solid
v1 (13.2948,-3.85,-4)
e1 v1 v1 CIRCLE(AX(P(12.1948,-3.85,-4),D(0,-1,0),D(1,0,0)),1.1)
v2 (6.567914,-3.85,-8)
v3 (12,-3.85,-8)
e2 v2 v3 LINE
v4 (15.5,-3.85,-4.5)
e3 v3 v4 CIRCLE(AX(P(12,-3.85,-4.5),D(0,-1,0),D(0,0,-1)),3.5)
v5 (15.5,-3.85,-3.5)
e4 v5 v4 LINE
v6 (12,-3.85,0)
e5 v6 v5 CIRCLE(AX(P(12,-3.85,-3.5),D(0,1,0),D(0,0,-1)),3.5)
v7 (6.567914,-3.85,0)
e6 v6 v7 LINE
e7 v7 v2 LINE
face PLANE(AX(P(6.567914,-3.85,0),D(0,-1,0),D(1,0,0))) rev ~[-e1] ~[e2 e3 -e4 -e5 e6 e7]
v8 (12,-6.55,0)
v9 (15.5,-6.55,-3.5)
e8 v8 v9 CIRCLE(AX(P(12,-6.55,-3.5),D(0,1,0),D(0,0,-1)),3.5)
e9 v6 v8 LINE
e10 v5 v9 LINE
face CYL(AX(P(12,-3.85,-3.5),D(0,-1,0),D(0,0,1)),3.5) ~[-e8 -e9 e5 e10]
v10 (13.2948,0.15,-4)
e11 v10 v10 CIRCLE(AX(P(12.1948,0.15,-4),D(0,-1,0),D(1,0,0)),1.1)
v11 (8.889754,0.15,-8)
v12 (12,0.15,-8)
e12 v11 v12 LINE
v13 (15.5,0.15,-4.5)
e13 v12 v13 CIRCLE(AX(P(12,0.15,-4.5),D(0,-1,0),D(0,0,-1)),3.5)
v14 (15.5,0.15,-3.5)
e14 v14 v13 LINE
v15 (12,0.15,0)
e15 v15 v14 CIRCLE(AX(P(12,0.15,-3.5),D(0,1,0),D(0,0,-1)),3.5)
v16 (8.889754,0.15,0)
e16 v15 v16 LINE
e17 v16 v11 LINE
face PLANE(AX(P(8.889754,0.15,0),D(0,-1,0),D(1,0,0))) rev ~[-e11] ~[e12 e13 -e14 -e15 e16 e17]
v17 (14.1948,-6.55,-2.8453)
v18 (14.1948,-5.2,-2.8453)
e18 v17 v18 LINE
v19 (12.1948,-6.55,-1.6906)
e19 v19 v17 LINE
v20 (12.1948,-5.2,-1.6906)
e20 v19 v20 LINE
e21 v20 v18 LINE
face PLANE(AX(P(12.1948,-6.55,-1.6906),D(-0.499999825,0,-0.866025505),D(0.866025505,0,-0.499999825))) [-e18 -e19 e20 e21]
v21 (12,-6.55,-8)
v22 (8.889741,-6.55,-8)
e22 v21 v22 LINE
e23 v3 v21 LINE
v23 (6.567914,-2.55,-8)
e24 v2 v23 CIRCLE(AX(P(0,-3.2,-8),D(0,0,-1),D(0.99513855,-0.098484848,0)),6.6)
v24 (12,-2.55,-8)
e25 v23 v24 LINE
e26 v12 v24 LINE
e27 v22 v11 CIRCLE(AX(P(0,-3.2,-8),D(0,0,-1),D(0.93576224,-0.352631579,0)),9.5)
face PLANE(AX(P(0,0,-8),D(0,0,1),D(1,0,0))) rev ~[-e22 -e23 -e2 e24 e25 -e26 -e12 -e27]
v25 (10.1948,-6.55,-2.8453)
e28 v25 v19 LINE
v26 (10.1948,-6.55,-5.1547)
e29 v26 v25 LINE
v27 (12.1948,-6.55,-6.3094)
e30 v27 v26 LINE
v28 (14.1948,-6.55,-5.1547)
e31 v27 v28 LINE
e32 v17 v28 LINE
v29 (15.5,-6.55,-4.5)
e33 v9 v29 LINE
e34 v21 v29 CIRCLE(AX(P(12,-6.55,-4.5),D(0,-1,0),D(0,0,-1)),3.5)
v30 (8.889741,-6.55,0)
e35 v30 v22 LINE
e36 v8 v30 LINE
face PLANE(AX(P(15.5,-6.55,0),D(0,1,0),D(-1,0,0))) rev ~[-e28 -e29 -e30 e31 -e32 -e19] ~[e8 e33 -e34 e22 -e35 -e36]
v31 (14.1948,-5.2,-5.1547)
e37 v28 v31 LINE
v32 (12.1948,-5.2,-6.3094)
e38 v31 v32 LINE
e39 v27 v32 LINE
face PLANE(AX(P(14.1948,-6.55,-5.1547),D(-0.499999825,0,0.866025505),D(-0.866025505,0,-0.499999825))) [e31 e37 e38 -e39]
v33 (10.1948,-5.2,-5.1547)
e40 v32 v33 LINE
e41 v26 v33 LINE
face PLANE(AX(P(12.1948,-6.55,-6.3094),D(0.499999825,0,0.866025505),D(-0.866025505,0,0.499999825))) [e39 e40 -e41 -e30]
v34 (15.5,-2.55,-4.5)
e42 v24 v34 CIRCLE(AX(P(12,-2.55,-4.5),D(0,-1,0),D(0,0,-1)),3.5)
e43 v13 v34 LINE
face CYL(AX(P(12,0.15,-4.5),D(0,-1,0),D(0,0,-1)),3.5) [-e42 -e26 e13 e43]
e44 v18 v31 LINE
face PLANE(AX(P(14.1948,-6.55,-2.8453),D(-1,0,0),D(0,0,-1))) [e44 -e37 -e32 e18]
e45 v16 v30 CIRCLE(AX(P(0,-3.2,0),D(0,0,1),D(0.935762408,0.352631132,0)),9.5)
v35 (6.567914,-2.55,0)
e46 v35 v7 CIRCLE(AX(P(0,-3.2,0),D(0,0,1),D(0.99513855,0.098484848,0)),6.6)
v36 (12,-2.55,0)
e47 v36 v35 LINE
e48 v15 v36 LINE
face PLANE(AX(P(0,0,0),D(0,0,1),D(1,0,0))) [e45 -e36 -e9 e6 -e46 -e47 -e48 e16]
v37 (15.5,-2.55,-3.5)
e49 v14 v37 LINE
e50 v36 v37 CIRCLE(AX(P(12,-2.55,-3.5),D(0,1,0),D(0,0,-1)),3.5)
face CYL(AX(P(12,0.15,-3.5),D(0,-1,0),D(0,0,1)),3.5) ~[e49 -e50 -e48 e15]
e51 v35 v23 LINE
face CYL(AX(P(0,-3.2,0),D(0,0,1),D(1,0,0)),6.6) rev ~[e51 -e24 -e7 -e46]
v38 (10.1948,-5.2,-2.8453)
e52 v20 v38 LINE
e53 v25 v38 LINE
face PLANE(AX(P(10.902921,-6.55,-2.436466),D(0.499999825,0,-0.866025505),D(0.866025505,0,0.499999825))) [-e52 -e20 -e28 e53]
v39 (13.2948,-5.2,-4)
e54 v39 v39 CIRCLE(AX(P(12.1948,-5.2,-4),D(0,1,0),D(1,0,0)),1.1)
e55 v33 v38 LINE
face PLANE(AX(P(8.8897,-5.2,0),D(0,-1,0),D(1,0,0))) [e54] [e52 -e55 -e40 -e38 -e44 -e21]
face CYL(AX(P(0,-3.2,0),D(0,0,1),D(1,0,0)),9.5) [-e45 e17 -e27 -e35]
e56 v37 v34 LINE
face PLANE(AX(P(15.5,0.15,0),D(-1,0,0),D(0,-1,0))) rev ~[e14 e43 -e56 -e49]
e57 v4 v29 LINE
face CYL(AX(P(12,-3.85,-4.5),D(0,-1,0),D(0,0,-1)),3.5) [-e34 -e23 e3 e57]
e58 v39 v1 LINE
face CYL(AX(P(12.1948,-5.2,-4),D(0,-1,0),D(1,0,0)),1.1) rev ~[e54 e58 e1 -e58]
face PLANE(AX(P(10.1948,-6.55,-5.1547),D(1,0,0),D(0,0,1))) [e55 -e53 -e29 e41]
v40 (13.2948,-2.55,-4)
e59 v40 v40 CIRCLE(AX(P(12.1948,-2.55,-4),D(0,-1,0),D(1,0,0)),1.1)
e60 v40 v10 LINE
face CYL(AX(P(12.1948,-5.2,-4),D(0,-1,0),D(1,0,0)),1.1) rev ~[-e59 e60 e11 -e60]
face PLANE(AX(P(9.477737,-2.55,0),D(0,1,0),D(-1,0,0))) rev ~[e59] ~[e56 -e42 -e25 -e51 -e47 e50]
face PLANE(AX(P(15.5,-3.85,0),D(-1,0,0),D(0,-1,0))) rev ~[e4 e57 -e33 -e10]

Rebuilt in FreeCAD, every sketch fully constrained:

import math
import FreeCAD as App
import Part
import Sketcher

V = App.Vector
Q = App.Units.Quantity


def edges_at(feature, points):
    """Names of the edges that pass closest to the given points."""
    edges = feature.Shape.Edges
    near = lambda p: min(range(len(edges)), key=lambda i: edges[i].distToShape(Part.Vertex(*p))[0])
    return sorted({f"Edge{near(p) + 1}" for p in points})

doc = App.newDocument("Part")
params = doc.addObject("Spreadsheet::Sheet", "Params")
for row, (alias, value) in enumerate([
    ("sketch1_height", "2.7 mm"),
    ("sketch1_radius", "9.5 mm"),
    ("sketch1_radius2", "6.6 mm"),
    ("pad1_length", "8 mm"),
    ("pocket1_length", "1.35 mm"),
    ("sketch3_diameter", "2.2 mm"),
    ("fillet_radius", "3.5 mm"),
], start=1):
    params.set(f"A{row}", alias)
    params.set(f"B{row}", "=" + value)
    params.setAlias(f"B{row}", alias)

body = doc.addObject("PartDesign::Body", "Body")

sketch1 = body.newObject("Sketcher::SketchObject", "Sketch")
sketch1.AttachmentSupport = (doc.getObject("XY_Plane"), [""])
sketch1.MapMode = "FlatFace"
sketch1.addGeometry(Part.LineSegment(V(6.6, -2.5, 0), V(15.5, -2.5, 0)), False)
sketch1.addGeometry(Part.LineSegment(V(15.5, -2.5, 0), V(15.5, 0.1, 0)), False)
sketch1.addGeometry(Part.LineSegment(V(15.5, 0.1, 0), V(8.9, 0.1, 0)), False)
sketch1.addGeometry(Part.ArcOfCircle(Part.Circle(V(0, -3.2, 0), V(0, 0, 1), 9.5), math.radians(21), math.radians(339)), False)
sketch1.addGeometry(Part.LineSegment(V(8.9, -6.5, 0), V(15.5, -6.5, 0)), False)
sketch1.addGeometry(Part.LineSegment(V(15.5, -6.5, 0), V(15.5, -3.9, 0)), False)
sketch1.addGeometry(Part.LineSegment(V(15.5, -3.9, 0), V(6.6, -3.9, 0)), False)
sketch1.addGeometry(Part.ArcOfCircle(Part.Circle(V(0, -3.2, 0), V(0, 0, 1), 6.6), math.radians(6), math.radians(354)), False)
sketch1.addConstraint(Sketcher.Constraint("Coincident", 0, 2, 1, 1))
sketch1.addConstraint(Sketcher.Constraint("Coincident", 1, 2, 2, 1))
sketch1.addConstraint(Sketcher.Constraint("Coincident", 2, 2, 3, 1))
sketch1.addConstraint(Sketcher.Constraint("Coincident", 3, 2, 4, 1))
sketch1.addConstraint(Sketcher.Constraint("Coincident", 4, 2, 5, 1))
sketch1.addConstraint(Sketcher.Constraint("Coincident", 5, 2, 6, 1))
sketch1.addConstraint(Sketcher.Constraint("Coincident", 6, 2, 7, 2))
sketch1.addConstraint(Sketcher.Constraint("Coincident", 7, 1, 0, 1))
sketch1.addConstraint(Sketcher.Constraint("Horizontal", 0))
sketch1.addConstraint(Sketcher.Constraint("Vertical", 1))
sketch1.addConstraint(Sketcher.Constraint("Horizontal", 2))
sketch1.addConstraint(Sketcher.Constraint("Horizontal", 4))
sketch1.addConstraint(Sketcher.Constraint("Vertical", 5))
sketch1.addConstraint(Sketcher.Constraint("Horizontal", 6))
sketch1.addConstraint(Sketcher.Constraint("Coincident", 7, 3, 3, 3))
sketch1.addConstraint(Sketcher.Constraint("PointOnObject", 3, 3, -2))
sketch1.addConstraint(Sketcher.Constraint("Vertical", 2, 2, 3, 2))
sketch1.addConstraint(Sketcher.Constraint("Vertical", 1, 2, 4, 2))
sketch1.addConstraint(Sketcher.Constraint("Vertical", 6, 2, 7, 1))
sketch1.addConstraint(Sketcher.Constraint("DistanceY", 1, 1, 1, 2, 2.7))
sketch1.addConstraint(Sketcher.Constraint("Radius", 3, 9.5))
sketch1.addConstraint(Sketcher.Constraint("Radius", 7, 6.6))
sketch1.addConstraint(Sketcher.Constraint("DistanceY", 5, 2, 0, 2, 1.3))
sketch1.addConstraint(Sketcher.Constraint("DistanceY", 3, 3, -1, 1, 3.2))
sketch1.addConstraint(Sketcher.Constraint("DistanceX", -1, 1, 0, 2, 15.5))
sketch1.setExpression("Constraints[19]", "Params.sketch1_height")
sketch1.setExpression("Constraints[20]", "Params.sketch1_radius")
sketch1.setExpression("Constraints[21]", "Params.sketch1_radius2")
pad1 = body.newObject("PartDesign::Pad", "Pad")
pad1.Profile = sketch1
pad1.setExpression("Length", "Params.pad1_length")
pad1.Reversed = True

sketch2 = body.newObject("Sketcher::SketchObject", "Sketch001")
sketch2.AttachmentSupport = (doc.getObject("XZ_Plane"), [""])
sketch2.MapMode = "FlatFace"
sketch2.AttachmentOffset = App.Placement(V(0, 0, 6.55), App.Rotation())
sketch2.addGeometry(Part.LineSegment(V(12.2, -1.7, 0), V(10.2, -2.8, 0)), False)
sketch2.addGeometry(Part.LineSegment(V(10.2, -2.8, 0), V(10.2, -5.2, 0)), False)
sketch2.addGeometry(Part.LineSegment(V(10.2, -5.2, 0), V(12.2, -6.3, 0)), False)
sketch2.addGeometry(Part.LineSegment(V(12.2, -6.3, 0), V(14.2, -5.2, 0)), False)
sketch2.addGeometry(Part.LineSegment(V(14.2, -5.2, 0), V(14.2, -2.8, 0)), False)
sketch2.addGeometry(Part.LineSegment(V(14.2, -2.8, 0), V(12.2, -1.7, 0)), False)
sketch2.addConstraint(Sketcher.Constraint("Coincident", 0, 2, 1, 1))
sketch2.addConstraint(Sketcher.Constraint("Coincident", 1, 2, 2, 1))
sketch2.addConstraint(Sketcher.Constraint("Coincident", 2, 2, 3, 1))
sketch2.addConstraint(Sketcher.Constraint("Coincident", 3, 2, 4, 1))
sketch2.addConstraint(Sketcher.Constraint("Coincident", 4, 2, 5, 1))
sketch2.addConstraint(Sketcher.Constraint("Coincident", 5, 2, 0, 1))
sketch2.addConstraint(Sketcher.Constraint("Vertical", 1))
sketch2.addConstraint(Sketcher.Constraint("Vertical", 4))
sketch2.addConstraint(Sketcher.Constraint("Parallel", 0, 3))
sketch2.addConstraint(Sketcher.Constraint("Parallel", 2, 5))
sketch2.addConstraint(Sketcher.Constraint("Horizontal", 1, 2, 3, 2))
sketch2.addConstraint(Sketcher.Constraint("Horizontal", 0, 2, 4, 2))
sketch2.addConstraint(Sketcher.Constraint("Vertical", 2, 2, 5, 2))
sketch2.addConstraint(Sketcher.Constraint("DistanceX", 1, 2, 3, 2, 4.0))
sketch2.addConstraint(Sketcher.Constraint("Angle", 0, Q("-150 deg")))
sketch2.addConstraint(Sketcher.Constraint("DistanceY", 1, 2, 1, 1, 2.3094))
sketch2.addConstraint(Sketcher.Constraint("DistanceX", -1, 1, 0, 2, 10.1948))
sketch2.addConstraint(Sketcher.Constraint("DistanceY", 0, 2, -1, 1, 2.8453))
pocket1 = body.newObject("PartDesign::Pocket", "Pocket")
pocket1.Profile = sketch2
pocket1.setExpression("Length", "Params.pocket1_length")

sketch3 = body.newObject("Sketcher::SketchObject", "Sketch002")
sketch3.AttachmentSupport = (doc.getObject("XZ_Plane"), [""])
sketch3.MapMode = "FlatFace"
sketch3.AttachmentOffset = App.Placement(V(0, 0, 5.2), App.Rotation())
sketch3.addGeometry(Part.Circle(V(12.2, -4, 0), V(0, 0, 1), 1.1), False)
sketch3.addConstraint(Sketcher.Constraint("Diameter", 0, 2.2))
sketch3.addConstraint(Sketcher.Constraint("DistanceY", 0, 3, -1, 1, 4.0))
sketch3.addConstraint(Sketcher.Constraint("DistanceX", -1, 1, 0, 3, 12.1948))
sketch3.setExpression("Constraints[0]", "Params.sketch3_diameter")
pocket2 = body.newObject("PartDesign::Pocket", "Pocket001")
pocket2.Profile = sketch3
pocket2.Type = "ThroughAll"
doc.recompute()

fillet = body.newObject("PartDesign::Fillet", "Fillet")
fillet.Base = (pocket2, edges_at(pocket2, [
    (15.5, -1.2, -8),
    (15.5, -5.2, -8),
    (15.5, -5.2, 0),
    (15.5, -1.2, 0),
]))
fillet.setExpression("Radius", "Params.fillet_radius")

doc.recompute()
